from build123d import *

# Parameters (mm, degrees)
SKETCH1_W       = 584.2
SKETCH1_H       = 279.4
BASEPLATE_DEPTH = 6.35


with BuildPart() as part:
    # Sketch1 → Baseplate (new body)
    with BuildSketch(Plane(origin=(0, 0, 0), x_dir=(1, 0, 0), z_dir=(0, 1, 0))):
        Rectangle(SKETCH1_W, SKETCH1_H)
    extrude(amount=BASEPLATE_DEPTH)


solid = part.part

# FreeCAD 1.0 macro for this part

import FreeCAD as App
import Part
import Sketcher
Q = App.Units.Quantity


def add_polygon(sketch, points):
    """Adds a closed chain of lines whose ends are joined by coincident constraints."""
    first, n = sketch.GeometryCount, len(points)
    for a, b in zip(points, points[1:] + points[:1]):
        sketch.addGeometry(Part.LineSegment(App.Vector(*a, 0), App.Vector(*b, 0)), False)
    for i in range(n):
        sketch.addConstraint(Sketcher.Constraint("Coincident", first + i, 2, first + (i + 1) % n, 1))

doc = App.newDocument("Part")
body = doc.addObject("PartDesign::Body", "Body")

# Sketch on XZ plane
sketch1 = body.newObject("Sketcher::SketchObject", "Sketch")
sketch1.AttachmentSupport = (doc.getObject("XZ_Plane"), [""])
sketch1.MapMode = "FlatFace"
add_polygon(sketch1, [(-292.1, -139.7), (-292.1, 139.7), (292.1, 139.7), (292.1, -139.7)])  # lines 0-3
sketch1.addConstraint(Sketcher.Constraint("Vertical", 0))
sketch1.addConstraint(Sketcher.Constraint("Horizontal", 1))
sketch1.addConstraint(Sketcher.Constraint("Vertical", 2))
sketch1.addConstraint(Sketcher.Constraint("Horizontal", 3))
sketch1.addConstraint(Sketcher.Constraint("Symmetric", 0, 2, 2, 2, -1, 1))
sketch1.addConstraint(Sketcher.Constraint("DistanceX", 1, 1, 1, 2, Q("23 in")))
sketch1.addConstraint(Sketcher.Constraint("DistanceY", 0, 1, 0, 2, Q("11 in")))
pad1 = body.newObject("PartDesign::Pad", "Pad")
pad1.Profile = sketch1
pad1.Length = Q("0.25 in")
pad1.Reversed = True

doc.recompute()
